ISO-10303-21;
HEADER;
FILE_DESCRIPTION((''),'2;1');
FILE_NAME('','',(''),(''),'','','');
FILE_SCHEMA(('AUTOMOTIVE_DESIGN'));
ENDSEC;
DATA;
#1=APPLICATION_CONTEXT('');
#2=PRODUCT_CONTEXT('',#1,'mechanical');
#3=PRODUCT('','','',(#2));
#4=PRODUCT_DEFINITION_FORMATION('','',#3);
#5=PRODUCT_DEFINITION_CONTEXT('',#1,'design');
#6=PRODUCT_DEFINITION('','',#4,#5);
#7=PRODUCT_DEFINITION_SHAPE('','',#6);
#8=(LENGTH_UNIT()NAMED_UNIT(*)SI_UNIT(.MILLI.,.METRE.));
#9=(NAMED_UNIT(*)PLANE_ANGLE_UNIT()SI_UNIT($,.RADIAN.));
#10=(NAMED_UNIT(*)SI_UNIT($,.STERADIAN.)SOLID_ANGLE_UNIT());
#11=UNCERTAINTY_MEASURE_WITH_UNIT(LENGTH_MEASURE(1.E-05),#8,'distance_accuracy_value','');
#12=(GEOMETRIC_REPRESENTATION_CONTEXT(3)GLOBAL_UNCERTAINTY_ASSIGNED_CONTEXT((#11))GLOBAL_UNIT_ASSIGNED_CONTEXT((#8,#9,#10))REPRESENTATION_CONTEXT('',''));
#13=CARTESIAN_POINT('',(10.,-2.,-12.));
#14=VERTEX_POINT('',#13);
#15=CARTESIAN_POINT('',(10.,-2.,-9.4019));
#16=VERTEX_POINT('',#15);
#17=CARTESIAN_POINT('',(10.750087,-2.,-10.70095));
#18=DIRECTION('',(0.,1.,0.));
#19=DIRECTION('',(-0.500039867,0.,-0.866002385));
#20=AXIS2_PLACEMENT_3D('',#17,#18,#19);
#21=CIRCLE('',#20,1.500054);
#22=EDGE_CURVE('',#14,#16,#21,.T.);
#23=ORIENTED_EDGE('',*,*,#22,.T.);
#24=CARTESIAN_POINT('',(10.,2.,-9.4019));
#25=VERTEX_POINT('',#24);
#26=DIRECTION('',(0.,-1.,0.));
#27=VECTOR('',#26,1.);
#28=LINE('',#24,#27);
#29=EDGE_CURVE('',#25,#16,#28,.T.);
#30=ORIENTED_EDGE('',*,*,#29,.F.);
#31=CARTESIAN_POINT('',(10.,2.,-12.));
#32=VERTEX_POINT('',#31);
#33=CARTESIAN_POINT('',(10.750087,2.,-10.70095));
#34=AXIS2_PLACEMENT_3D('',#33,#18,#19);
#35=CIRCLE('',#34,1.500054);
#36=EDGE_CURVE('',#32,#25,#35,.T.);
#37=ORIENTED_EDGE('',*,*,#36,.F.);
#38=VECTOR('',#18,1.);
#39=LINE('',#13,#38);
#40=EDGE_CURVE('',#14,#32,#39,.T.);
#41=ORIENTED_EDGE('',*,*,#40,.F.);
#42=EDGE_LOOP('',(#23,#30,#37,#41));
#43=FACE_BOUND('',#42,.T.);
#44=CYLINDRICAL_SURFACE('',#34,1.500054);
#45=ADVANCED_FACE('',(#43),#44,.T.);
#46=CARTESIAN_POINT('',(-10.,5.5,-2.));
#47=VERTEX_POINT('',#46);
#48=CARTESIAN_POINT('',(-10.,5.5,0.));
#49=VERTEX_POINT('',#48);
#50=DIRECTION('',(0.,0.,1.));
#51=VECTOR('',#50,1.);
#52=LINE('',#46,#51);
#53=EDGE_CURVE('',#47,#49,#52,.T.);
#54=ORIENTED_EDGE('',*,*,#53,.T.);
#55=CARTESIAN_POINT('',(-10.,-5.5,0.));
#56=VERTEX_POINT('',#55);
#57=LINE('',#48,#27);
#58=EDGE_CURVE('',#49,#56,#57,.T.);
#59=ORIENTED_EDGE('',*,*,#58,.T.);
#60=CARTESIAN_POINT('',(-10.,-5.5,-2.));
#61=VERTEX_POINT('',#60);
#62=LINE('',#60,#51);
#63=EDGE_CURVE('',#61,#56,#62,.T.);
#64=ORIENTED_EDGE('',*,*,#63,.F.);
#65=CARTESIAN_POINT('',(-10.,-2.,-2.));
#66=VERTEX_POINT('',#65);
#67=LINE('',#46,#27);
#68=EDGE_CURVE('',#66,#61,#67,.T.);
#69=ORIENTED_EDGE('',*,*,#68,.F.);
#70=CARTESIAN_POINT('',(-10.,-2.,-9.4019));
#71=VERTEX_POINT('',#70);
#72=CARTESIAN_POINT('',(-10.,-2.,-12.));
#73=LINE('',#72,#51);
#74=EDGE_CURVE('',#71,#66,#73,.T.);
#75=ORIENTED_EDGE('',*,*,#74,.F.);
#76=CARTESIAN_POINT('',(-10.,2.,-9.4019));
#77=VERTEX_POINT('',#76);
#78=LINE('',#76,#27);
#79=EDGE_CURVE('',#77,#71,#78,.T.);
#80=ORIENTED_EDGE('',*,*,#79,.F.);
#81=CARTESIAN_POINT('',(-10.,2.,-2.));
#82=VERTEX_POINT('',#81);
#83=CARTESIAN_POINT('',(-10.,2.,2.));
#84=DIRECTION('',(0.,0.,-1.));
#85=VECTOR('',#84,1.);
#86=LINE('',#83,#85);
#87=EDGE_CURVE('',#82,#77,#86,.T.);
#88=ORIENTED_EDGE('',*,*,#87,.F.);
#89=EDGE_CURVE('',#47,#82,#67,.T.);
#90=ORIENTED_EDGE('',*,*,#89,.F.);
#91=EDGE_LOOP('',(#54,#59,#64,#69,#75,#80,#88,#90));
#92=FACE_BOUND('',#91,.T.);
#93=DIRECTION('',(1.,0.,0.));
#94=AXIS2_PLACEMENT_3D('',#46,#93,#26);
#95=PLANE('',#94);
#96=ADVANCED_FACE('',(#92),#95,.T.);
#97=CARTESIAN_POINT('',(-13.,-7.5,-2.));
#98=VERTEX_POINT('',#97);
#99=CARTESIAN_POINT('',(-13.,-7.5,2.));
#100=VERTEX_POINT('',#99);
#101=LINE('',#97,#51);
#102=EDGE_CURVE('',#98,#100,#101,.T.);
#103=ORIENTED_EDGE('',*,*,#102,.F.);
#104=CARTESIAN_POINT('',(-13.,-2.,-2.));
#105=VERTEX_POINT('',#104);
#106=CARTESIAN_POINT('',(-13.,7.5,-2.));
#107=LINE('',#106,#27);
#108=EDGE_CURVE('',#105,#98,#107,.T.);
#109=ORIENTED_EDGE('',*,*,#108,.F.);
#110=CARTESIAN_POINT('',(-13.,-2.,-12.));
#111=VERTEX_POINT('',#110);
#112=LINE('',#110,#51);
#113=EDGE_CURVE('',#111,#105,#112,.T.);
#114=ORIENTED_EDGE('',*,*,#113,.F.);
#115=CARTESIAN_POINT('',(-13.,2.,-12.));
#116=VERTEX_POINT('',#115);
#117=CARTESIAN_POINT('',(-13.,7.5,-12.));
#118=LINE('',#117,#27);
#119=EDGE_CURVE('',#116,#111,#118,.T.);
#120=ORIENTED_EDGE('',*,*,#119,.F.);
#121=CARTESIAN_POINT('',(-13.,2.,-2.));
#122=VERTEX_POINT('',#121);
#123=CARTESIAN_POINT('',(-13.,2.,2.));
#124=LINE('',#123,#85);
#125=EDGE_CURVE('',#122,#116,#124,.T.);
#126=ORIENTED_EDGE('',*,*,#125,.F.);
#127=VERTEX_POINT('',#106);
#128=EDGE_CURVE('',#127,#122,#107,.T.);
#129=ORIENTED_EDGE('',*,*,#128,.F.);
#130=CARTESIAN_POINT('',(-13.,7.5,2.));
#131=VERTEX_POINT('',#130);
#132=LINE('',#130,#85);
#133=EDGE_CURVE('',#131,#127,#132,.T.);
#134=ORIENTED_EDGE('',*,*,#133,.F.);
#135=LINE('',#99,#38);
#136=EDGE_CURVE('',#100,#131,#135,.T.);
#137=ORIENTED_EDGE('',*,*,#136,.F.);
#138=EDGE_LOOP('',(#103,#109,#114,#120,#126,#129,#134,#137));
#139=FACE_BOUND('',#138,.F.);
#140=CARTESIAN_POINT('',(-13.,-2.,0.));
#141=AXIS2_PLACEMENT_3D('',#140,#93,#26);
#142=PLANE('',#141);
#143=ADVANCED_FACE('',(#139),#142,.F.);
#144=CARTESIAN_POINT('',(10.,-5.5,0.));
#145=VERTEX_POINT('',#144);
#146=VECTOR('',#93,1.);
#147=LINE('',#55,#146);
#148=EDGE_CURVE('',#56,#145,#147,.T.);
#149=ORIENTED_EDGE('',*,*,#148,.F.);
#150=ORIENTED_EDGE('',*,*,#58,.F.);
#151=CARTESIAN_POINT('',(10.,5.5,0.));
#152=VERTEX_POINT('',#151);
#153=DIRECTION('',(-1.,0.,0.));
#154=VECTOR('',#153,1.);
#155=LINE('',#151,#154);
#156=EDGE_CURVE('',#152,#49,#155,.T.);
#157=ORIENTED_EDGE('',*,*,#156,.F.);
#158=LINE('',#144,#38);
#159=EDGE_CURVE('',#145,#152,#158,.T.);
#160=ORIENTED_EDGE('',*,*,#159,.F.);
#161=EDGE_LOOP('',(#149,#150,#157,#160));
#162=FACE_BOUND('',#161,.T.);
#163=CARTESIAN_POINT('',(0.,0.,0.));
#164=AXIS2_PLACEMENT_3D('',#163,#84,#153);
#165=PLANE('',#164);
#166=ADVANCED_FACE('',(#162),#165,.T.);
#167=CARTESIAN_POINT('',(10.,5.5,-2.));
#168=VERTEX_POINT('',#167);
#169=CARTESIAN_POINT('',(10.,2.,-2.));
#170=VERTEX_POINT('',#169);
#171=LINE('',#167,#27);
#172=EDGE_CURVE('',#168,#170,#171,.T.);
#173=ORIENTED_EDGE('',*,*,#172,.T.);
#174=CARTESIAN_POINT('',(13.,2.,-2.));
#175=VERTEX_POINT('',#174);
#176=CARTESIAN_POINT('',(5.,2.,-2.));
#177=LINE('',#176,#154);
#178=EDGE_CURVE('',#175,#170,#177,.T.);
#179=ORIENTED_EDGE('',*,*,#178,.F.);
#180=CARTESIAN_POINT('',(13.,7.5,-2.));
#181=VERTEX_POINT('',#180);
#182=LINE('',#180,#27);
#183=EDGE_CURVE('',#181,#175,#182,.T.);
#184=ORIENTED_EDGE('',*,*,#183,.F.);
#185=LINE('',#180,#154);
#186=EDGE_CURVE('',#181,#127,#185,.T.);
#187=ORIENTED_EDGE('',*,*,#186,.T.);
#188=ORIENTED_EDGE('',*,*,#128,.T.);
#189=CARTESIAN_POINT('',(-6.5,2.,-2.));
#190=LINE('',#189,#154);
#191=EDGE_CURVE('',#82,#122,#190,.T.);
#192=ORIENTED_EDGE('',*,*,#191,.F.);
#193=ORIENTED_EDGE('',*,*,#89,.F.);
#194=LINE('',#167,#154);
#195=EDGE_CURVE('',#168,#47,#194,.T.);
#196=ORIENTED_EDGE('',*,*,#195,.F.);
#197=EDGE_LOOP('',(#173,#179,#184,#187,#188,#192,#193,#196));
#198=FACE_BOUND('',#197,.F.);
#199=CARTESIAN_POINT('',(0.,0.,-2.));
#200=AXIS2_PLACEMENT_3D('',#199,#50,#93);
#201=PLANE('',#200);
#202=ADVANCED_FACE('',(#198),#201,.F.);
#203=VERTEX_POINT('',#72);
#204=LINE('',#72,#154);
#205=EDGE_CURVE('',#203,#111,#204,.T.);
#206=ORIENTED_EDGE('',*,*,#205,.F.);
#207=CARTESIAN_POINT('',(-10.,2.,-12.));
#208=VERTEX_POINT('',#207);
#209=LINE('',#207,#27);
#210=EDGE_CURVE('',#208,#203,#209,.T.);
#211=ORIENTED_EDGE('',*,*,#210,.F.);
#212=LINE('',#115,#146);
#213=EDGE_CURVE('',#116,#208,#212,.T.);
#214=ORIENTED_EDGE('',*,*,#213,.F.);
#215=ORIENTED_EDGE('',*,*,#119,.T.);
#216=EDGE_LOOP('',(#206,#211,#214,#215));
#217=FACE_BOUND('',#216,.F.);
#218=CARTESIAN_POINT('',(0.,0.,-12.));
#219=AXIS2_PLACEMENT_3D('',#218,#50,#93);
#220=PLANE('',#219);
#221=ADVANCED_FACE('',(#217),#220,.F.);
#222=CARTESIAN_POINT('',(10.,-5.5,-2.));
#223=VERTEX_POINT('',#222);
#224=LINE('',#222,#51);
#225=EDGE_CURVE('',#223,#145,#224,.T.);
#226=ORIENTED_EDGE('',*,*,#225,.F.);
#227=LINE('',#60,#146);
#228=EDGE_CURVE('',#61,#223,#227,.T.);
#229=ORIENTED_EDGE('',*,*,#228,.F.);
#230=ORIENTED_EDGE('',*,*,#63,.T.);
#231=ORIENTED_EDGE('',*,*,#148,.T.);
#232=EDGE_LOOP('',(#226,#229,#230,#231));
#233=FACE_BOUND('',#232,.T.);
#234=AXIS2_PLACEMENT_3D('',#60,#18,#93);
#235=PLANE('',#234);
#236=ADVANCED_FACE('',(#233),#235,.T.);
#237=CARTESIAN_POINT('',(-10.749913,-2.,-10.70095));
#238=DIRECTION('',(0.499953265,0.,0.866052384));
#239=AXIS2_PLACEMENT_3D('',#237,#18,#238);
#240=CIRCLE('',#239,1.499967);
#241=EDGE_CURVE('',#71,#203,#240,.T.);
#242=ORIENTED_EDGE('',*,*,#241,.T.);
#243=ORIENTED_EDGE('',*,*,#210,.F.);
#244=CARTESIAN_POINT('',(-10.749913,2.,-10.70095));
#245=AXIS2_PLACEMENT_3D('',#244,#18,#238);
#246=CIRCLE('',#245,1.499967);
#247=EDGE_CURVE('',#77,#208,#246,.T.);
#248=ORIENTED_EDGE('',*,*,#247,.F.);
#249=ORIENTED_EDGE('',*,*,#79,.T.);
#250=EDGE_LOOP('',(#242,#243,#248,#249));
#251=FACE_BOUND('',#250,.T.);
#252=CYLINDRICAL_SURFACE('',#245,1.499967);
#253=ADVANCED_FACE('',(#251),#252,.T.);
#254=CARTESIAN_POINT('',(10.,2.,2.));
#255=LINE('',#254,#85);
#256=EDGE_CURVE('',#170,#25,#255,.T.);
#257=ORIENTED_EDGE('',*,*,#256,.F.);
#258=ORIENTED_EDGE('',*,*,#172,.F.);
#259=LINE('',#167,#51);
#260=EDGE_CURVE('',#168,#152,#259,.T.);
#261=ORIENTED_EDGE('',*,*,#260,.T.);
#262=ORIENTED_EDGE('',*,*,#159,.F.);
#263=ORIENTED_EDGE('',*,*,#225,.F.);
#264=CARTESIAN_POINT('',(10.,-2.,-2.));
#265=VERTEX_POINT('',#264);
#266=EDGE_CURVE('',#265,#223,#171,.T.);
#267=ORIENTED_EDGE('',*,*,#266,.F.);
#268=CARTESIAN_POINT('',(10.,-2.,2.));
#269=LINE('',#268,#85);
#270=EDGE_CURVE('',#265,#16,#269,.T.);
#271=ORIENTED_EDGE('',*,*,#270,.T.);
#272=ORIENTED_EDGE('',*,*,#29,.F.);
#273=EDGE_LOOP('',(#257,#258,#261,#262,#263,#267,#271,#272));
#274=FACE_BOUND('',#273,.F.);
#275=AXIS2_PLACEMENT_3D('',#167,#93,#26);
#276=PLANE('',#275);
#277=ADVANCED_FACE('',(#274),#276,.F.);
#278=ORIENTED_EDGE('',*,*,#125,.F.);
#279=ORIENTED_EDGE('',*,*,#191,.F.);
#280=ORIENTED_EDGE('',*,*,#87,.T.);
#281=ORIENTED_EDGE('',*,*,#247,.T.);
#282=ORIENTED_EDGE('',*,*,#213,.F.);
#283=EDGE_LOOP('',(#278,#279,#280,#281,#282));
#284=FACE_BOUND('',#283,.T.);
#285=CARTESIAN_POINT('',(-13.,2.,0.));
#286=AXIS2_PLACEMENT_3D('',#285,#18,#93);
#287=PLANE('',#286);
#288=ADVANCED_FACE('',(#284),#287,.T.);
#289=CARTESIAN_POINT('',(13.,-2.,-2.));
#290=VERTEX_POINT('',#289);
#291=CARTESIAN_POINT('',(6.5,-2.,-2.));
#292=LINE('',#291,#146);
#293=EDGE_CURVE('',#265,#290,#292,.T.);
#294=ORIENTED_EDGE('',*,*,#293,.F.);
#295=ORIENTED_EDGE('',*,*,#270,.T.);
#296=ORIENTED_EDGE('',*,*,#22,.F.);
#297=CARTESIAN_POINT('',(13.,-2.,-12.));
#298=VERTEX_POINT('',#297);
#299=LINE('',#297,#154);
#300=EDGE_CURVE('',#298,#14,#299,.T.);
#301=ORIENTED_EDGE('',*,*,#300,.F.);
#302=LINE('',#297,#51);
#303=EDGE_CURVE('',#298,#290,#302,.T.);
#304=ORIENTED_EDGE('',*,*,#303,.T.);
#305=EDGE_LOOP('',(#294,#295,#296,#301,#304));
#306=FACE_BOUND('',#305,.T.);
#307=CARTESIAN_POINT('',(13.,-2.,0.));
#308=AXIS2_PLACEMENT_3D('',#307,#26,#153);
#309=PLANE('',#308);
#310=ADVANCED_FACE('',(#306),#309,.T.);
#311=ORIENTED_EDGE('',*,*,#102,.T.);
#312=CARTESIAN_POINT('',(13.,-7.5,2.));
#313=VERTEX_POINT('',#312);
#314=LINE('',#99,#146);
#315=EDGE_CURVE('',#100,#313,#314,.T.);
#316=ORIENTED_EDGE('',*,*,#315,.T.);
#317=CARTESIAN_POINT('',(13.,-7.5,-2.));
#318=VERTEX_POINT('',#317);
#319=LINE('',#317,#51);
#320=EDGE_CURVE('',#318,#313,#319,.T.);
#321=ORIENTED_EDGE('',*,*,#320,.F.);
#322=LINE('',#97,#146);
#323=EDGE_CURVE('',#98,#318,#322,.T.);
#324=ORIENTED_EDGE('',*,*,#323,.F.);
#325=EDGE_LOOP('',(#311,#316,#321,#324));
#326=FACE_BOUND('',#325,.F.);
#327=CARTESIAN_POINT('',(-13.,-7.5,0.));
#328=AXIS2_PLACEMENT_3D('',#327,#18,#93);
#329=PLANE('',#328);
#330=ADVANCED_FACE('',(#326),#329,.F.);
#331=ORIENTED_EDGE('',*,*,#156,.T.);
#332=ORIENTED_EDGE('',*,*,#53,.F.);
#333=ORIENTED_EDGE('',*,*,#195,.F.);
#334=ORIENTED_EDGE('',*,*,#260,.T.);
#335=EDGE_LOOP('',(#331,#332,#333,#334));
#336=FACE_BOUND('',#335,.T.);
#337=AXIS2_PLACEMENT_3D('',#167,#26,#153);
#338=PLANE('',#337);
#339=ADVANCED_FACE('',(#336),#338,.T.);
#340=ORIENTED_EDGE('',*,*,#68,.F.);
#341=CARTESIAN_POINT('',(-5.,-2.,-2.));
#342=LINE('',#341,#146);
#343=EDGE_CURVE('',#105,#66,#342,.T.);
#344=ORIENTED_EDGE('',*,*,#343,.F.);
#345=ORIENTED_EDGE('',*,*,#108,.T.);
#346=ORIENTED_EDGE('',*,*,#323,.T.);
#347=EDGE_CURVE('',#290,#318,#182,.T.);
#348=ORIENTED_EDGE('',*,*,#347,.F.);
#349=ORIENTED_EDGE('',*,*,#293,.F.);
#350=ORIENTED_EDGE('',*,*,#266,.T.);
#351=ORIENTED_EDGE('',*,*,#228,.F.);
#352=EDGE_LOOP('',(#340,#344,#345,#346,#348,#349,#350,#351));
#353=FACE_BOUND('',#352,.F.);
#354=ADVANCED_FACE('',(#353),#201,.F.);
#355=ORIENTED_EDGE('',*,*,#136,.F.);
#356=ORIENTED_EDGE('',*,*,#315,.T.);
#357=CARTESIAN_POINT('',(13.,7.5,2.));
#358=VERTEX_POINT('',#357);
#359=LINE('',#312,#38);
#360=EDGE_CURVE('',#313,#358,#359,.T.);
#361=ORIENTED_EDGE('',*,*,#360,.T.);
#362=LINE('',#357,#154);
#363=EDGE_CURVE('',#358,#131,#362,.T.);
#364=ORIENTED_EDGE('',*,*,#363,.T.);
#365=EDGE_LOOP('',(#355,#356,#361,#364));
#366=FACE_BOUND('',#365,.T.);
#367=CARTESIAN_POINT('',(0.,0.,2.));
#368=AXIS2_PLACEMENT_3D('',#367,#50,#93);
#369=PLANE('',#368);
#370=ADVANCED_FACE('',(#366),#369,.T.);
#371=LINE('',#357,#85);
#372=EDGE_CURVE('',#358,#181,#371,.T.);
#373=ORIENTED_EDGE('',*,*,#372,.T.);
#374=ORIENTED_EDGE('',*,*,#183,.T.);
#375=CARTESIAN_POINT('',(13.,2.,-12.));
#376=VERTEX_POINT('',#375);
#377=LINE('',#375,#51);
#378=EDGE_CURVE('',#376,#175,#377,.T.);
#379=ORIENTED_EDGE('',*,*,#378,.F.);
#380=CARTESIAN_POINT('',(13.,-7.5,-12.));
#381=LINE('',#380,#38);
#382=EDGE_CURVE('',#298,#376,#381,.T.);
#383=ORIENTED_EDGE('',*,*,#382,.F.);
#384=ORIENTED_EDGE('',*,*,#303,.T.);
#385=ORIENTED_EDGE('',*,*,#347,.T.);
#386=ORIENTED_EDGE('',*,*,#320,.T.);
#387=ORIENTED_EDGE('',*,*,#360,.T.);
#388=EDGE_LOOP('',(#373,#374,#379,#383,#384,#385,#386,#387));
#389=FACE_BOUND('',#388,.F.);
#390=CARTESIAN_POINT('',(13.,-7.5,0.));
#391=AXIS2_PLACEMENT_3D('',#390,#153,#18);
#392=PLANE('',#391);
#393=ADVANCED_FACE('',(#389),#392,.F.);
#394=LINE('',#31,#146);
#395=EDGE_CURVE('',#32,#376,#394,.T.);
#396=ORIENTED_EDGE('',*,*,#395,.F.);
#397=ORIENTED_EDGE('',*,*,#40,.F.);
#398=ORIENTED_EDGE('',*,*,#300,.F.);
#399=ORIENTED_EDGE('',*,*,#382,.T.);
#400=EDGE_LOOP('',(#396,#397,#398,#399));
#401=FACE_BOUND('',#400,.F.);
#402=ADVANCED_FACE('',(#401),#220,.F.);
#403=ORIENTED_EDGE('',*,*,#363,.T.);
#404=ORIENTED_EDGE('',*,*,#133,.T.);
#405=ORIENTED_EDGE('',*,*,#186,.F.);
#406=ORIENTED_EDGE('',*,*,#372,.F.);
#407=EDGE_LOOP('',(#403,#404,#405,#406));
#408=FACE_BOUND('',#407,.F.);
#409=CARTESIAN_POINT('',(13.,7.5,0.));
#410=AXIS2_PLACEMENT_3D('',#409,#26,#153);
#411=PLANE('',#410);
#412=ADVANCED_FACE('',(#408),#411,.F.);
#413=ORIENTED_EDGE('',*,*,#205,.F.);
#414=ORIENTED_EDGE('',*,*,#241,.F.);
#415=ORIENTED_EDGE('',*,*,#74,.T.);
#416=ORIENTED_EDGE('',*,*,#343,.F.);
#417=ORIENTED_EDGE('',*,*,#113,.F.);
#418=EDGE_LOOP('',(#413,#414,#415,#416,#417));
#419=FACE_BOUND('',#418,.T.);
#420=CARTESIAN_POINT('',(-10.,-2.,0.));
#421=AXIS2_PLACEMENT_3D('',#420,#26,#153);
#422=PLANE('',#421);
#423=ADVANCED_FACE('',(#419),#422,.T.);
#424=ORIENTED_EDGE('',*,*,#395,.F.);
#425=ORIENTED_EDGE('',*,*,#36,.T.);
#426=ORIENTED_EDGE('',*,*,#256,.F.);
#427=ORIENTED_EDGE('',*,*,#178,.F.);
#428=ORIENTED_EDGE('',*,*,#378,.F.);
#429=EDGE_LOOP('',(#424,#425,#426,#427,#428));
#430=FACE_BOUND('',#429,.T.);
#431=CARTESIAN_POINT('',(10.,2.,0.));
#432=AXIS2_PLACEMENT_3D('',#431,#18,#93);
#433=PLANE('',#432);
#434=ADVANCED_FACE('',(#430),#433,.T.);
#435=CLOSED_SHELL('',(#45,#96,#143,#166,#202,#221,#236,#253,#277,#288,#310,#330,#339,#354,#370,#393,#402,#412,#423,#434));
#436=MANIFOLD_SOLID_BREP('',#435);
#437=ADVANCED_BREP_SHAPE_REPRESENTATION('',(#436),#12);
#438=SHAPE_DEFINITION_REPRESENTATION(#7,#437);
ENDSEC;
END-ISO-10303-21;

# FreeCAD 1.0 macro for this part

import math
import FreeCAD as App
import Part
import Sketcher

V = App.Vector
Q = App.Units.Quantity


def add_polygon(sketch, points):
    """Adds a closed chain of lines whose ends are joined by coincident constraints."""
    first, n = sketch.GeometryCount, len(points)
    for a, b in zip(points, points[1:] + points[:1]):
        sketch.addGeometry(Part.LineSegment(App.Vector(*a, 0), App.Vector(*b, 0)), False)
    for i in range(n):
        sketch.addConstraint(Sketcher.Constraint("Coincident", first + i, 2, first + (i + 1) % n, 1))

doc = App.newDocument("Part")
body = doc.addObject("PartDesign::Body", "Body")

# Sketch on XY plane
sketch1 = doc.addObject("Sketcher::SketchObject", "Sketch")
body.addObject(sketch1)
sketch1.AttachmentSupport = (doc.XY_Plane, [""])
sketch1.MapMode = "FlatFace"
add_polygon(sketch1, [(-13, -7.5), (13, -7.5), (13, 7.5), (-13, 7.5)])  # lines 0-3
sketch1.addConstraint([
    Sketcher.Constraint("Horizontal", 0),
    Sketcher.Constraint("Vertical", 1),
    Sketcher.Constraint("Horizontal", 2),
    Sketcher.Constraint("Vertical", 3),
    Sketcher.Constraint("Symmetric", 0, 2, 2, 2, -1, 1),
    Sketcher.Constraint("DistanceX", 0, 1, 0, 2, Q("26 mm")),
    Sketcher.Constraint("DistanceY", 1, 1, 1, 2, Q("15 mm")),
])
pad1 = doc.addObject("PartDesign::Pad", "Pad")
body.addObject(pad1)
pad1.Profile = sketch1
pad1.Length = 4
pad1.Midplane = True

# Sketch on XY plane
sketch2 = doc.addObject("Sketcher::SketchObject", "Sketch001")
body.addObject(sketch2)
sketch2.AttachmentSupport = (doc.XY_Plane, [""])
sketch2.MapMode = "FlatFace"
sketch2.AttachmentOffset = App.Placement(V(0, 0, -2), App.Rotation())
add_polygon(sketch2, [(-10, 5.5), (10, 5.5), (10, -5.5), (-10, -5.5)])  # lines 0-3
sketch2.addConstraint([
    Sketcher.Constraint("Horizontal", 0),
    Sketcher.Constraint("Vertical", 1),
    Sketcher.Constraint("Horizontal", 2),
    Sketcher.Constraint("Vertical", 3),
    Sketcher.Constraint("Symmetric", 0, 2, 2, 2, -1, 1),
    Sketcher.Constraint("DistanceX", 0, 1, 0, 2, Q("20 mm")),
    Sketcher.Constraint("DistanceY", 1, 2, 1, 1, Q("11 mm")),
])
pocket1 = doc.addObject("PartDesign::Pocket", "Pocket")
body.addObject(pocket1)
pocket1.Profile = sketch2
pocket1.Length = 2
pocket1.Reversed = True

# Sketch on XY plane
sketch3 = doc.addObject("Sketcher::SketchObject", "Sketch002")
body.addObject(sketch3)
sketch3.AttachmentSupport = (doc.XY_Plane, [""])
sketch3.MapMode = "FlatFace"
add_polygon(sketch3, [(-13, 2), (-13, -2), (-10, -2), (-10, 2)])  # lines 0-3
add_polygon(sketch3, [(10, -2), (13, -2), (13, 2), (10, 2)])  # lines 4-7
sketch3.addConstraint([
    Sketcher.Constraint("Vertical", 0),
    Sketcher.Constraint("Horizontal", 1),
    Sketcher.Constraint("Vertical", 2),
    Sketcher.Constraint("Horizontal", 3),
    Sketcher.Constraint("Horizontal", 4),
    Sketcher.Constraint("Vertical", 5),
    Sketcher.Constraint("Horizontal", 6),
    Sketcher.Constraint("Vertical", 7),
    Sketcher.Constraint("Symmetric", 3, 2, 4, 2, -1, 1),
    Sketcher.Constraint("Symmetric", 1, 2, 6, 2, -1, 1),
    Sketcher.Constraint("Horizontal", 1, 2, 4, 2),
    Sketcher.Constraint("DistanceX", 1, 1, 1, 2, Q("3 mm")),
    Sketcher.Constraint("DistanceY", 0, 2, 0, 1, Q("4 mm")),
    Sketcher.Constraint("DistanceX", 0, 2, 4, 2, Q("26 mm")),
])
pad2 = doc.addObject("PartDesign::Pad", "Pad001")
body.addObject(pad2)
pad2.Profile = sketch3
pad2.Type = "TwoLengths"
pad2.Length = 2
pad2.Length2 = 12

# Sketch on XZ plane
sketch4 = doc.addObject("Sketcher::SketchObject", "Sketch003")
body.addObject(sketch4)
sketch4.AttachmentSupport = (doc.XZ_Plane, [""])
sketch4.MapMode = "FlatFace"
sketch4.AttachmentOffset = App.Placement(V(0, 0, -2), App.Rotation())
sketch4.addGeometry([
    Part.ArcOfCircle(Part.Circle(V(10.75, -10.701, 0), V(0, 0, 1), 1.499967), math.radians(119.998818), math.radians(239.999272)),
    Part.LineSegment(V(10, -9.4019, 0), V(10, -12, 0)),
    Part.ArcOfCircle(Part.Circle(V(-10.75, -10.701, 0), V(0, 0, 1), 1.500054), math.radians(-59.999272), math.radians(60.001182)),
    Part.LineSegment(V(-10, -12, 0), V(-10, -9.4019, 0)),
], False)
sketch4.addConstraint([
    Sketcher.Constraint("Coincident", 0, 1, 1, 1),
    Sketcher.Constraint("Coincident", 1, 2, 0, 2),
    Sketcher.Constraint("Coincident", 2, 1, 3, 1),
    Sketcher.Constraint("Coincident", 3, 2, 2, 2),
    Sketcher.Constraint("Vertical", 1),
    Sketcher.Constraint("Vertical", 3),
    Sketcher.Constraint("Equal", 0, 2),
    Sketcher.Constraint("Symmetric", 0, 3, 2, 3, -2),
    Sketcher.Constraint("Horizontal", 1, 2, 2, 1),
    Sketcher.Constraint("Radius", 0, Q("1.5 mm")),
    Sketcher.Constraint("DistanceX", 0, 1, 0, 3, Q("0.75 mm")),
    Sketcher.Constraint("DistanceX", -1, 1, 0, 1, Q("10 mm")),
    Sketcher.Constraint("DistanceY", 1, 2, -1, 1, Q("12 mm")),
])
pad3 = doc.addObject("PartDesign::Pad", "Pad002")
body.addObject(pad3)
pad3.Profile = sketch4
pad3.Length = 4

doc.recompute()
